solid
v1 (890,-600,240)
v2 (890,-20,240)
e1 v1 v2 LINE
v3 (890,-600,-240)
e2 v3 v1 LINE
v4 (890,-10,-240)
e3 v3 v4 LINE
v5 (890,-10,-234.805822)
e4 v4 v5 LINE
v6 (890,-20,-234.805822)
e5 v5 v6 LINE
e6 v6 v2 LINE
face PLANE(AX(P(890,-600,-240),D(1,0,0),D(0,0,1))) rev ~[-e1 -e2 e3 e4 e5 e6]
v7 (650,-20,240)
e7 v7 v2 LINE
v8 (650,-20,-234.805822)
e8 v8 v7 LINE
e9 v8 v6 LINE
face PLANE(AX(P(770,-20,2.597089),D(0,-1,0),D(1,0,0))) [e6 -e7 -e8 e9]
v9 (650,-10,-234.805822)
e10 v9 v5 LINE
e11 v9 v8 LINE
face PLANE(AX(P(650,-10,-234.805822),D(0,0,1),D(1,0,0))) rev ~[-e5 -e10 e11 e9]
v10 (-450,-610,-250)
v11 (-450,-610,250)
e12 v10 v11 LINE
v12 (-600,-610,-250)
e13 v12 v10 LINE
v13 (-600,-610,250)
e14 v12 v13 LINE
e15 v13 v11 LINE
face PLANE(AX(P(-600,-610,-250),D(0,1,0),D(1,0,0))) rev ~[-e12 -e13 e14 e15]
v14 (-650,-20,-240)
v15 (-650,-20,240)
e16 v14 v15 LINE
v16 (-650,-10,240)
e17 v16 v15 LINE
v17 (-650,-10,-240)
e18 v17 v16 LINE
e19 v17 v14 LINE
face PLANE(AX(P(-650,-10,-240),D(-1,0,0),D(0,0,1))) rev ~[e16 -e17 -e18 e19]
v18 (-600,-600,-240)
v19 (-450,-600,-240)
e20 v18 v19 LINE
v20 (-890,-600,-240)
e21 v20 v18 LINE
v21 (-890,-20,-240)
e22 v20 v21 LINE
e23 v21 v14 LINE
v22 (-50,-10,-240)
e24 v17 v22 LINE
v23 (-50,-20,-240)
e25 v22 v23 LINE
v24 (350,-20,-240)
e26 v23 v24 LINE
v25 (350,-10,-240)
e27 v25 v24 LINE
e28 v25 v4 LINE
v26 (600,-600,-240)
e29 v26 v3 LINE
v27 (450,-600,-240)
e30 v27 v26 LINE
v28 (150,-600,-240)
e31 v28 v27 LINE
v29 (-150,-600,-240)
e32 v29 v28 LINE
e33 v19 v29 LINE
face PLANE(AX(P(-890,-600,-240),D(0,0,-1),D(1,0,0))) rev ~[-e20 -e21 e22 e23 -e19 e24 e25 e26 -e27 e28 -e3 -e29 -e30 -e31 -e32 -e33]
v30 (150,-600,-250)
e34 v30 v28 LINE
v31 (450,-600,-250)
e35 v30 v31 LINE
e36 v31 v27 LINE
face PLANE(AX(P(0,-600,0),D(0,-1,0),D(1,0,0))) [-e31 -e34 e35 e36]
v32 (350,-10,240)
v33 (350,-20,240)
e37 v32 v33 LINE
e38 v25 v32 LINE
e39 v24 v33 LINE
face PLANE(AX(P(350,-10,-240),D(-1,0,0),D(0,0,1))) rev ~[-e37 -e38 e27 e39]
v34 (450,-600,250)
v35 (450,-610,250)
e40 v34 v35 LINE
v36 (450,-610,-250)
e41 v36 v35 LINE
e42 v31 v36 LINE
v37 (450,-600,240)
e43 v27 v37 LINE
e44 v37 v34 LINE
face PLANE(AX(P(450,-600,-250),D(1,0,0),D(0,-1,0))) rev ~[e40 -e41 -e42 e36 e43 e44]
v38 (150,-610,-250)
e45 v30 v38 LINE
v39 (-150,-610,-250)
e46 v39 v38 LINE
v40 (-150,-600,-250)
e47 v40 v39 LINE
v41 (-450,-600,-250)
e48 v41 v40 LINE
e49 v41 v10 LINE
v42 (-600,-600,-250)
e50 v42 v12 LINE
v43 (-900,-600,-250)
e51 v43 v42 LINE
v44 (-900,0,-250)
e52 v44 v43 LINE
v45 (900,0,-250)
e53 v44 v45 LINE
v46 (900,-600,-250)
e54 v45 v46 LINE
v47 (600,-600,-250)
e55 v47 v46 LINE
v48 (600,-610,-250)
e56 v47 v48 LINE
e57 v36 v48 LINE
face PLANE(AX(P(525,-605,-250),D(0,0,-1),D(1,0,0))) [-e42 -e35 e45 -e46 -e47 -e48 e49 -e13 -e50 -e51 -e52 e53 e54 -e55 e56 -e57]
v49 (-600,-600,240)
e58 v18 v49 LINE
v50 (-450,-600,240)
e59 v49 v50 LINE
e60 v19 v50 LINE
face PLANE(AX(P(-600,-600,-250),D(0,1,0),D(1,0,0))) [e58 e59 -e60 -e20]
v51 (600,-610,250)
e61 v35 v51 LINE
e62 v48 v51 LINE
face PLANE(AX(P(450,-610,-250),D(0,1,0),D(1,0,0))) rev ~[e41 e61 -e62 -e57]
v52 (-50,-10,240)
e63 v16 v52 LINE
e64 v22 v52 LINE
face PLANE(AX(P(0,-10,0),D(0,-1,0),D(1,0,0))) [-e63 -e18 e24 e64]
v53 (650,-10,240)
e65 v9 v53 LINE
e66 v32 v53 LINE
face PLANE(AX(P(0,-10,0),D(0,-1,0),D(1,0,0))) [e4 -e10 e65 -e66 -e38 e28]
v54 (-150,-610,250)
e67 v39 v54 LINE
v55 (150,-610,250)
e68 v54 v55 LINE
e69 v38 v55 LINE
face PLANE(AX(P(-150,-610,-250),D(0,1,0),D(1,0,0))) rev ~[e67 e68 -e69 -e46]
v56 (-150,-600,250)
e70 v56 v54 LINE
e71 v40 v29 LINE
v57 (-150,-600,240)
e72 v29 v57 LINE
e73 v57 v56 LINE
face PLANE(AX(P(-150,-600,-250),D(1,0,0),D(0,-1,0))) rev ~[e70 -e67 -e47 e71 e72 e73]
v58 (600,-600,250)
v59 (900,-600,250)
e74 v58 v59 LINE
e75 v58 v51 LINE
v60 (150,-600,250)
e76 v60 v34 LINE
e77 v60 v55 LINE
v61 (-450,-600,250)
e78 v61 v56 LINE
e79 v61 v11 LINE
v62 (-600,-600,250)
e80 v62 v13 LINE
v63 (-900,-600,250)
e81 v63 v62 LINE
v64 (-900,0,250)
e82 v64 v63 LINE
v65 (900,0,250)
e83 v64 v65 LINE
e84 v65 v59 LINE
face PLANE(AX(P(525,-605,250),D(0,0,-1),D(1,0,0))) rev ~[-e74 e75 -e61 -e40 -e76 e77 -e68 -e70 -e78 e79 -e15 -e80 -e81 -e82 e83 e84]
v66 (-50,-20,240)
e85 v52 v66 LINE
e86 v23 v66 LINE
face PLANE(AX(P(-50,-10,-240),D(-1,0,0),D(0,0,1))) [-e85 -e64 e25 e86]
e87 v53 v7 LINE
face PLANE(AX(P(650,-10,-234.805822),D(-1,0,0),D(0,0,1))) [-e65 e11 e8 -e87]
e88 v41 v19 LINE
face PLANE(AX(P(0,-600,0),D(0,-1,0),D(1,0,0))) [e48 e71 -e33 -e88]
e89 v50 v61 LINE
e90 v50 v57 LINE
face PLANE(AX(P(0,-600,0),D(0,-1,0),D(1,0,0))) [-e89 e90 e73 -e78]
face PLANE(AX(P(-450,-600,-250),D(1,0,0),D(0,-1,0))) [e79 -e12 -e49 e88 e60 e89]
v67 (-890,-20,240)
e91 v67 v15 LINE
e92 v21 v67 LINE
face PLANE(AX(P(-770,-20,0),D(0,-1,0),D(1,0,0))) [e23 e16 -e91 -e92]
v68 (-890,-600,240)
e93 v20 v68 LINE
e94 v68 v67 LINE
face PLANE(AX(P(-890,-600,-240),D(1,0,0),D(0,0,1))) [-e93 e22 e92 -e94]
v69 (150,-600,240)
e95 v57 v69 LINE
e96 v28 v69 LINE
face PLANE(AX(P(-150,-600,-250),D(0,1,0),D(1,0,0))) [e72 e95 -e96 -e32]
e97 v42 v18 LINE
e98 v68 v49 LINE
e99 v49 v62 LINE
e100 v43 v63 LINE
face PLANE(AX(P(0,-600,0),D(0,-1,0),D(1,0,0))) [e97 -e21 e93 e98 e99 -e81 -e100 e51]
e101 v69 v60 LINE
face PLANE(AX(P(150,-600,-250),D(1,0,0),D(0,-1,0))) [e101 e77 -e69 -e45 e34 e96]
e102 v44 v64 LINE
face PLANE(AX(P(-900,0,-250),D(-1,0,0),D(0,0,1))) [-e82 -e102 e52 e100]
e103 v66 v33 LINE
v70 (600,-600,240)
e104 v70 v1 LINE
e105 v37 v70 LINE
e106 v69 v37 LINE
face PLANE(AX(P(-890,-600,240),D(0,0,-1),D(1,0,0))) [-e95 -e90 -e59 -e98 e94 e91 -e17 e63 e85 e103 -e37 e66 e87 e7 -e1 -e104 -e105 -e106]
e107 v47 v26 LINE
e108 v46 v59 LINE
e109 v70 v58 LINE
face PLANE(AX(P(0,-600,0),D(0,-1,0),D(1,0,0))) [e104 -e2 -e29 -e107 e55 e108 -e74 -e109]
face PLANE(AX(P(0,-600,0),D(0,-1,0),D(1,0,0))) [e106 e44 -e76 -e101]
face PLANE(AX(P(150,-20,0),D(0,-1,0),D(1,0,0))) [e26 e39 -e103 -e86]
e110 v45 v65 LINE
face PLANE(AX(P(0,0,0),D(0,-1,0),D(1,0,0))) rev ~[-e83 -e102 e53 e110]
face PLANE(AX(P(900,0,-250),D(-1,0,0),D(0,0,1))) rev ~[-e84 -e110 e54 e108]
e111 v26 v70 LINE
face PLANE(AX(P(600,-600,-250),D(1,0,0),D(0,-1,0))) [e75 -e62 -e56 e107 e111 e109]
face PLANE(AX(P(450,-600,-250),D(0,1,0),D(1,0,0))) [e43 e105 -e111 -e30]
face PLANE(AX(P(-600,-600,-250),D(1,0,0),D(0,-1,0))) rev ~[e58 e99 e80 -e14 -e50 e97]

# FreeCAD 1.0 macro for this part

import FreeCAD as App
import Part
import Sketcher
Q = App.Units.Quantity

doc = App.newDocument("Part")
body = doc.addObject("PartDesign::Body", "Body")

# Sketch on XZ plane
sketch1 = body.newObject("Sketcher::SketchObject", "Sketch")
sketch1.AttachmentSupport = (doc.getObject("XZ_Plane"), [""])
sketch1.MapMode = "FlatFace"
sketch1.addGeometry([
    Part.LineSegment(App.Vector(-900, 250, 0), App.Vector(-900, -250, 0)),
    Part.LineSegment(App.Vector(-900, -250, 0), App.Vector(900, -250, 0)),
    Part.LineSegment(App.Vector(900, -250, 0), App.Vector(900, 250, 0)),
    Part.LineSegment(App.Vector(900, 250, 0), App.Vector(-900, 250, 0)),
], False)
sketch1.addConstraint([
    Sketcher.Constraint("Coincident", 0, 2, 1, 1),
    Sketcher.Constraint("Coincident", 1, 2, 2, 1),
    Sketcher.Constraint("Coincident", 2, 2, 3, 1),
    Sketcher.Constraint("Coincident", 3, 2, 0, 1),
    Sketcher.Constraint("Vertical", 0),
    Sketcher.Constraint("Horizontal", 1),
    Sketcher.Constraint("Vertical", 2),
    Sketcher.Constraint("Horizontal", 3),
    Sketcher.Constraint("Symmetric", 0, 2, 2, 2, -1, 1),
    Sketcher.Constraint("DistanceX", 1, 1, 1, 2, Q("1800 mm")),
    Sketcher.Constraint("DistanceY", 0, 2, 0, 1, Q("500 mm")),
])
pad1 = body.newObject("PartDesign::Pad", "Pad")
pad1.Profile = sketch1
pad1.Length = 600

# Sketch on XZ plane
sketch2 = body.newObject("Sketcher::SketchObject", "Sketch001")
sketch2.AttachmentSupport = (doc.getObject("XZ_Plane"), [""])
sketch2.MapMode = "FlatFace"
sketch2.AttachmentOffset = App.Placement(App.Vector(0, 0, 600), App.Rotation())
sketch2.addGeometry([
    Part.LineSegment(App.Vector(-890, 240, 0), App.Vector(-890, -240, 0)),
    Part.LineSegment(App.Vector(-890, -240, 0), App.Vector(890, -240, 0)),
    Part.LineSegment(App.Vector(890, -240, 0), App.Vector(890, 240, 0)),
    Part.LineSegment(App.Vector(890, 240, 0), App.Vector(-890, 240, 0)),
], False)
sketch2.addConstraint([
    Sketcher.Constraint("Coincident", 0, 2, 1, 1),
    Sketcher.Constraint("Coincident", 1, 2, 2, 1),
    Sketcher.Constraint("Coincident", 2, 2, 3, 1),
    Sketcher.Constraint("Coincident", 3, 2, 0, 1),
    Sketcher.Constraint("Vertical", 0),
    Sketcher.Constraint("Horizontal", 1),
    Sketcher.Constraint("Vertical", 2),
    Sketcher.Constraint("Horizontal", 3),
    Sketcher.Constraint("Symmetric", 0, 2, 2, 2, -1, 1),
    Sketcher.Constraint("DistanceX", 1, 1, 1, 2, Q("1780 mm")),
    Sketcher.Constraint("DistanceY", 0, 2, 0, 1, Q("480 mm")),
])
pocket1 = body.newObject("PartDesign::Pocket", "Pocket")
pocket1.Profile = sketch2
pocket1.Length = 590

# Sketch on XY plane
sketch3 = body.newObject("Sketcher::SketchObject", "Sketch002")
sketch3.AttachmentSupport = (doc.getObject("XY_Plane"), [""])
sketch3.MapMode = "FlatFace"
sketch3.AttachmentOffset = App.Placement(App.Vector(0, 0, -250), App.Rotation())
sketch3.addGeometry([
    Part.LineSegment(App.Vector(450, -610, 0), App.Vector(450, -600, 0)),  # 0
    Part.LineSegment(App.Vector(450, -600, 0), App.Vector(600, -600, 0)),  # 1
    Part.LineSegment(App.Vector(600, -600, 0), App.Vector(600, -610, 0)),  # 2
    Part.LineSegment(App.Vector(600, -610, 0), App.Vector(450, -610, 0)),  # 3
    Part.LineSegment(App.Vector(-150, -610, 0), App.Vector(-150, -600, 0)),  # 4
    Part.LineSegment(App.Vector(-150, -600, 0), App.Vector(150, -600, 0)),  # 5
    Part.LineSegment(App.Vector(150, -600, 0), App.Vector(150, -610, 0)),  # 6
    Part.LineSegment(App.Vector(150, -610, 0), App.Vector(-150, -610, 0)),  # 7
    Part.LineSegment(App.Vector(-600, -610, 0), App.Vector(-600, -600, 0)),  # 8
    Part.LineSegment(App.Vector(-600, -600, 0), App.Vector(-450, -600, 0)),  # 9
    Part.LineSegment(App.Vector(-450, -600, 0), App.Vector(-450, -610, 0)),  # 10
    Part.LineSegment(App.Vector(-450, -610, 0), App.Vector(-600, -610, 0)),  # 11
], False)
sketch3.addConstraint([
    Sketcher.Constraint("Coincident", 0, 2, 1, 1),
    Sketcher.Constraint("Coincident", 1, 2, 2, 1),
    Sketcher.Constraint("Coincident", 2, 2, 3, 1),
    Sketcher.Constraint("Coincident", 3, 2, 0, 1),
    Sketcher.Constraint("Coincident", 4, 2, 5, 1),
    Sketcher.Constraint("Coincident", 5, 2, 6, 1),
    Sketcher.Constraint("Coincident", 6, 2, 7, 1),
    Sketcher.Constraint("Coincident", 7, 2, 4, 1),
    Sketcher.Constraint("Coincident", 8, 2, 9, 1),
    Sketcher.Constraint("Coincident", 9, 2, 10, 1),
    Sketcher.Constraint("Coincident", 10, 2, 11, 1),
    Sketcher.Constraint("Coincident", 11, 2, 8, 1),
    Sketcher.Constraint("Vertical", 0),
    Sketcher.Constraint("Horizontal", 1),
    Sketcher.Constraint("Vertical", 2),
    Sketcher.Constraint("Horizontal", 3),
    Sketcher.Constraint("Vertical", 4),
    Sketcher.Constraint("Horizontal", 5),
    Sketcher.Constraint("Vertical", 6),
    Sketcher.Constraint("Horizontal", 7),
    Sketcher.Constraint("Vertical", 8),
    Sketcher.Constraint("Horizontal", 9),
    Sketcher.Constraint("Vertical", 10),
    Sketcher.Constraint("Horizontal", 11),
    Sketcher.Constraint("Symmetric", 1, 2, 8, 2, -2),
    Sketcher.Constraint("Symmetric", 3, 2, 10, 2, -2),
    Sketcher.Constraint("Horizontal", 1, 2, 4, 2),
    Sketcher.Constraint("Horizontal", 3, 2, 6, 2),
    Sketcher.Constraint("DistanceX", 1, 1, 1, 2, Q("150 mm")),
    Sketcher.Constraint("DistanceX", 5, 1, 5, 2, Q("300 mm")),
    Sketcher.Constraint("DistanceY", 0, 1, 0, 2, Q("10 mm")),
    Sketcher.Constraint("DistanceX", -1, 1, 0, 2, Q("450 mm")),
    Sketcher.Constraint("DistanceY", 0, 2, -1, 1, Q("600 mm")),
    Sketcher.Constraint("DistanceX", 4, 2, -1, 1, Q("150 mm")),
])
pad2 = body.newObject("PartDesign::Pad", "Pad001")
pad2.Profile = sketch3
pad2.Length = 500

# Sketch on XZ plane
sketch4 = body.newObject("Sketcher::SketchObject", "Sketch003")
sketch4.AttachmentSupport = (doc.getObject("XZ_Plane"), [""])
sketch4.MapMode = "FlatFace"
sketch4.AttachmentOffset = App.Placement(App.Vector(0, 0, 10), App.Rotation())
sketch4.addGeometry([
    Part.LineSegment(App.Vector(-890, 240, 0), App.Vector(-890, -240, 0)),  # 0
    Part.LineSegment(App.Vector(-890, -240, 0), App.Vector(-650, -240, 0)),  # 1
    Part.LineSegment(App.Vector(-650, -240, 0), App.Vector(-650, 240, 0)),  # 2
    Part.LineSegment(App.Vector(-650, 240, 0), App.Vector(-890, 240, 0)),  # 3
    Part.LineSegment(App.Vector(-50, 240, 0), App.Vector(-50, -240, 0)),  # 4
    Part.LineSegment(App.Vector(-50, -240, 0), App.Vector(350, -240, 0)),  # 5
    Part.LineSegment(App.Vector(350, -240, 0), App.Vector(350, 240, 0)),  # 6
    Part.LineSegment(App.Vector(350, 240, 0), App.Vector(-50, 240, 0)),  # 7
    Part.LineSegment(App.Vector(650, 240, 0), App.Vector(650, -235, 0)),  # 8
    Part.LineSegment(App.Vector(650, -235, 0), App.Vector(890, -235, 0)),  # 9
    Part.LineSegment(App.Vector(890, -235, 0), App.Vector(890, 240, 0)),  # 10
    Part.LineSegment(App.Vector(890, 240, 0), App.Vector(650, 240, 0)),  # 11
], False)
sketch4.addConstraint([
    Sketcher.Constraint("Coincident", 0, 2, 1, 1),
    Sketcher.Constraint("Coincident", 1, 2, 2, 1),
    Sketcher.Constraint("Coincident", 2, 2, 3, 1),
    Sketcher.Constraint("Coincident", 3, 2, 0, 1),
    Sketcher.Constraint("Coincident", 4, 2, 5, 1),
    Sketcher.Constraint("Coincident", 5, 2, 6, 1),
    Sketcher.Constraint("Coincident", 6, 2, 7, 1),
    Sketcher.Constraint("Coincident", 7, 2, 4, 1),
    Sketcher.Constraint("Coincident", 8, 2, 9, 1),
    Sketcher.Constraint("Coincident", 9, 2, 10, 1),
    Sketcher.Constraint("Coincident", 10, 2, 11, 1),
    Sketcher.Constraint("Coincident", 11, 2, 8, 1),
    Sketcher.Constraint("Vertical", 0),
    Sketcher.Constraint("Horizontal", 1),
    Sketcher.Constraint("Vertical", 2),
    Sketcher.Constraint("Horizontal", 3),
    Sketcher.Constraint("Vertical", 4),
    Sketcher.Constraint("Horizontal", 5),
    Sketcher.Constraint("Vertical", 6),
    Sketcher.Constraint("Horizontal", 7),
    Sketcher.Constraint("Vertical", 8),
    Sketcher.Constraint("Horizontal", 9),
    Sketcher.Constraint("Vertical", 10),
    Sketcher.Constraint("Horizontal", 11),
    Sketcher.Constraint("Symmetric", 0, 2, 10, 2, -1, 1),
    Sketcher.Constraint("Symmetric", 2, 2, 11, 2, -2),
    Sketcher.Constraint("Horizontal", 1, 2, 4, 2),
    Sketcher.Constraint("Horizontal", 3, 2, 6, 2),
    Sketcher.Constraint("DistanceX", 1, 1, 1, 2, Q("240 mm")),
    Sketcher.Constraint("DistanceX", 5, 1, 5, 2, Q("400 mm")),
    Sketcher.Constraint("DistanceY", 0, 2, 0, 1, Q("480 mm")),
    Sketcher.Constraint("DistanceX", 0, 2, -1, 1, Q("890 mm")),
    Sketcher.Constraint("DistanceX", 4, 2, -1, 1, Q("50 mm")),
    Sketcher.Constraint("DistanceY", 8, 2, 8, 1, Q("474.805822 mm")),
])
pad3 = body.newObject("PartDesign::Pad", "Pad002")
pad3.Profile = sketch4
pad3.Length = 10

doc.recompute()
